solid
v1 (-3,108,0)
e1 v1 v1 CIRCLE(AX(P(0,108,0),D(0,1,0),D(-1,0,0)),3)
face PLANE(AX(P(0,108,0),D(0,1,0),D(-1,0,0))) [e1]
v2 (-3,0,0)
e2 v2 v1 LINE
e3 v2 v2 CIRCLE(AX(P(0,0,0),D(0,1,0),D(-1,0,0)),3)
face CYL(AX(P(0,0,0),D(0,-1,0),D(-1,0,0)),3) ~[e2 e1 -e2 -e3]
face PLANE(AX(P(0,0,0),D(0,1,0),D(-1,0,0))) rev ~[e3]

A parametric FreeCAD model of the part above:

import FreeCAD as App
import Part
import Sketcher

doc = App.newDocument("Part")
params = doc.addObject("Spreadsheet::Sheet", "Params")
for row, (alias, value) in enumerate([
    ("sketch1_diameter", "6 mm"),
    ("pad1_length", "108 mm"),
], start=1):
    params.set(f"A{row}", alias)
    params.set(f"B{row}", "=" + value)
    params.setAlias(f"B{row}", alias)

body = doc.addObject("PartDesign::Body", "Body")

# Sketch on XZ plane
sketch1 = doc.addObject("Sketcher::SketchObject", "Sketch")
body.addObject(sketch1)
sketch1.AttachmentSupport = (doc.XZ_Plane, [""])
sketch1.MapMode = "FlatFace"
sketch1.addGeometry(Part.Circle(App.Vector(0, 0, 0), App.Vector(0, 0, 1), 3), False)
sketch1.addConstraint(Sketcher.Constraint("Coincident", 0, 3, -1, 1))
sketch1.addConstraint(Sketcher.Constraint("Diameter", 0, 6.0))
sketch1.setExpression("Constraints[1]", "Params.sketch1_diameter")
pad1 = doc.addObject("PartDesign::Pad", "Pad")
body.addObject(pad1)
pad1.Profile = sketch1
pad1.setExpression("Length", "Params.pad1_length")
pad1.Reversed = True

doc.recompute()
